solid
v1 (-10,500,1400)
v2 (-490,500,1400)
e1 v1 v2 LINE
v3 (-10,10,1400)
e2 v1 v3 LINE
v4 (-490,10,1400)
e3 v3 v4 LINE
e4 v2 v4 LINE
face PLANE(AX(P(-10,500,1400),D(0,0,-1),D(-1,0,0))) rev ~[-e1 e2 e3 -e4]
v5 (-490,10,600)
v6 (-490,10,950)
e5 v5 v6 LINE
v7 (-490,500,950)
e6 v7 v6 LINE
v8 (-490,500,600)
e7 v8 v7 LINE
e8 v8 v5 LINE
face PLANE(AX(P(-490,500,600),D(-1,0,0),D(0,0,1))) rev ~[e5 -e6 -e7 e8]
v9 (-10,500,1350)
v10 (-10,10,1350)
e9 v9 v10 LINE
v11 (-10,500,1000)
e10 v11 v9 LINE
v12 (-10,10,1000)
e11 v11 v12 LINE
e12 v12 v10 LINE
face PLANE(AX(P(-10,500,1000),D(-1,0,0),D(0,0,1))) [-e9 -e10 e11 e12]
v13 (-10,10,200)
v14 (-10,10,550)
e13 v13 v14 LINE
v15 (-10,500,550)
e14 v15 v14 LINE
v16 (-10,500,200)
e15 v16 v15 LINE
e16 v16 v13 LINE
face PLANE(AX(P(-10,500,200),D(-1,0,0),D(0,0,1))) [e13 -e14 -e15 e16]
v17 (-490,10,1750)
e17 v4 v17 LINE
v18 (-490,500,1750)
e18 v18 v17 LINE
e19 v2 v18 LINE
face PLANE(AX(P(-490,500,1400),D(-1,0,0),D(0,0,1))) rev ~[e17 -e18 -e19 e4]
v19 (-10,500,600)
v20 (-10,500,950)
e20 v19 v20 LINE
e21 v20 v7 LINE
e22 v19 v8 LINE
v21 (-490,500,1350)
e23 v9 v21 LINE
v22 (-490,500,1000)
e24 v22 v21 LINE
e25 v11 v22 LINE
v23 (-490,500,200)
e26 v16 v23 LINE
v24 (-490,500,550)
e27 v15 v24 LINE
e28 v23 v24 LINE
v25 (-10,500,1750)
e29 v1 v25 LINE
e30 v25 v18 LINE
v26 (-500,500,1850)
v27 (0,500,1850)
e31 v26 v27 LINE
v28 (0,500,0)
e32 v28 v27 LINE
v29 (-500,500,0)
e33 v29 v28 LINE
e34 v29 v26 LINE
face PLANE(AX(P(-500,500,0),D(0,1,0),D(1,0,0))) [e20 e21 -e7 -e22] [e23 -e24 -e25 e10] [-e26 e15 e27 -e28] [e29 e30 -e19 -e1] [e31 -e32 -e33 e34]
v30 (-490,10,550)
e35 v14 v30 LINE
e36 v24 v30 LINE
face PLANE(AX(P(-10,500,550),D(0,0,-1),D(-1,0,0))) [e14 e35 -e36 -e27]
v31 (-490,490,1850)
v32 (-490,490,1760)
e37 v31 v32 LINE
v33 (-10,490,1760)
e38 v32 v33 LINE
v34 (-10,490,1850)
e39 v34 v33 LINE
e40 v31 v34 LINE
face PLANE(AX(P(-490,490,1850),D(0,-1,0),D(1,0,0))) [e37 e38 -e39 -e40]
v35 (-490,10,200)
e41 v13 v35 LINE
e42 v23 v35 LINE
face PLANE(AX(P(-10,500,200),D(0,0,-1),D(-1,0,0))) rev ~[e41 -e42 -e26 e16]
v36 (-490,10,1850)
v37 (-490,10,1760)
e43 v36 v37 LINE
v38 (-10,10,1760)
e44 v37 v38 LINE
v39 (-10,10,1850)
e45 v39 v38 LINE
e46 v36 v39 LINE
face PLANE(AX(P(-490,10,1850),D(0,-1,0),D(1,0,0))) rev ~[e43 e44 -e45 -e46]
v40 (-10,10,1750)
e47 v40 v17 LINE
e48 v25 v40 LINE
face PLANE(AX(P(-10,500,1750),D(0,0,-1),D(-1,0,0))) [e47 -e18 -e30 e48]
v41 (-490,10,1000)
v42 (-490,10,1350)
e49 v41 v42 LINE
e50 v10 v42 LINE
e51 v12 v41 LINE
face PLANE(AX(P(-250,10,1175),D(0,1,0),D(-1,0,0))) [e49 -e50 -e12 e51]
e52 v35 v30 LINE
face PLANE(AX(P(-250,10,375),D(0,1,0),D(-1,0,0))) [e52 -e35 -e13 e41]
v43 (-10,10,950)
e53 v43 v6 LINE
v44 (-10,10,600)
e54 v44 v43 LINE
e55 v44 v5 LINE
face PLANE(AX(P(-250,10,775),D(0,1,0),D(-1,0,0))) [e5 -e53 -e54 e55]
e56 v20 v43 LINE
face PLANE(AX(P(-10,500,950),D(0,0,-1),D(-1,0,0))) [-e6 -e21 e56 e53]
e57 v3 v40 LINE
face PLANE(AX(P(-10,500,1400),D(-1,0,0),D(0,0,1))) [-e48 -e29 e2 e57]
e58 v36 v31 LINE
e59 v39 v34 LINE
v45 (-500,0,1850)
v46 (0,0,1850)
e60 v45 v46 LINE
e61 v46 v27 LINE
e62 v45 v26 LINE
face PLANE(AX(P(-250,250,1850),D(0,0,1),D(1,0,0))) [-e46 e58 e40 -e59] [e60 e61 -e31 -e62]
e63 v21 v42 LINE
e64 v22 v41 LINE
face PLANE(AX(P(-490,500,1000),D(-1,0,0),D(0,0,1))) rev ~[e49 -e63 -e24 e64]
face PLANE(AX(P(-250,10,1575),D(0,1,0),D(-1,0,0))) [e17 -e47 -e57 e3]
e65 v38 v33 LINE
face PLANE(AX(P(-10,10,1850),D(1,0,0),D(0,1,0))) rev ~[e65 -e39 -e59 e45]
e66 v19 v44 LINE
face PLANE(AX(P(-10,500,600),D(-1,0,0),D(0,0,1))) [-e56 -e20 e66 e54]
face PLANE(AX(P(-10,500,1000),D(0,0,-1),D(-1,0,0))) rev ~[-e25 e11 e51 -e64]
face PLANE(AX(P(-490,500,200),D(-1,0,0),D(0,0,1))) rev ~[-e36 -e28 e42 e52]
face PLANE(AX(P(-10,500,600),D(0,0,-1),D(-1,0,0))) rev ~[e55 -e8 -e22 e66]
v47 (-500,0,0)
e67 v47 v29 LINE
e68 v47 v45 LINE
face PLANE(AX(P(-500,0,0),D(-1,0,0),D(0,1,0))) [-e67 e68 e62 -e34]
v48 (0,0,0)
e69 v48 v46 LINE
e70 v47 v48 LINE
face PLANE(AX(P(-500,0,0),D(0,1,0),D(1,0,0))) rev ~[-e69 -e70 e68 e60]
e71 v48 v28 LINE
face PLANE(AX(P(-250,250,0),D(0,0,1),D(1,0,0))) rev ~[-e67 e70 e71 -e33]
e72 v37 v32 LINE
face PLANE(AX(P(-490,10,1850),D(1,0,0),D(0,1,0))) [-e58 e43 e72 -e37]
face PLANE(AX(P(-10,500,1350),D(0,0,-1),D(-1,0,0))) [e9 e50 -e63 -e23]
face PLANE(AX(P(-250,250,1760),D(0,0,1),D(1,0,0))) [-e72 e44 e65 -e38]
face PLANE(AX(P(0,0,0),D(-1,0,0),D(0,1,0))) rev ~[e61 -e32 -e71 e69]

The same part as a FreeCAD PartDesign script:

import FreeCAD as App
import Part
import Sketcher

V = App.Vector
Q = App.Units.Quantity

doc = App.newDocument("Part")
body = doc.addObject("PartDesign::Body", "Body")

# Sketch on XY plane
sketch1 = body.newObject("Sketcher::SketchObject", "Sketch")
sketch1.AttachmentSupport = (doc.getObject("XY_Plane"), [""])
sketch1.MapMode = "FlatFace"
sketch1.addGeometry([
    Part.LineSegment(V(-500, 500, 0), V(-500, 0, 0)),
    Part.LineSegment(V(-500, 0, 0), V(0, 0, 0)),
    Part.LineSegment(V(0, 0, 0), V(0, 500, 0)),
    Part.LineSegment(V(0, 500, 0), V(-500, 500, 0)),
], False)
sketch1.addConstraint([
    Sketcher.Constraint("Coincident", 0, 2, 1, 1),
    Sketcher.Constraint("Coincident", 1, 2, 2, 1),
    Sketcher.Constraint("Coincident", 2, 2, 3, 1),
    Sketcher.Constraint("Coincident", 3, 2, 0, 1),
    Sketcher.Constraint("Vertical", 0),
    Sketcher.Constraint("Horizontal", 1),
    Sketcher.Constraint("Vertical", 2),
    Sketcher.Constraint("Horizontal", 3),
    Sketcher.Constraint("Coincident", 1, 2, -1, 1),
    Sketcher.Constraint("Equal", 3, 0),
    Sketcher.Constraint("DistanceX", 1, 1, 1, 2, Q("500 mm")),
])
pad1 = body.newObject("PartDesign::Pad", "Pad")
pad1.Profile = sketch1
pad1.Length = 1850

# Sketch on XZ plane
sketch2 = body.newObject("Sketcher::SketchObject", "Sketch001")
sketch2.AttachmentSupport = (doc.getObject("XZ_Plane"), [""])
sketch2.MapMode = "FlatFace"
sketch2.AttachmentOffset = App.Placement(V(0, 0, -500), App.Rotation())
sketch2.addGeometry([
    Part.LineSegment(V(-10, 1750, 0), V(-10, 1400, 0)),  # 0
    Part.LineSegment(V(-10, 1400, 0), V(-490, 1400, 0)),  # 1
    Part.LineSegment(V(-490, 1400, 0), V(-490, 1750, 0)),  # 2
    Part.LineSegment(V(-490, 1750, 0), V(-10, 1750, 0)),  # 3
    Part.LineSegment(V(-10, 1350, 0), V(-10, 1000, 0)),  # 4
    Part.LineSegment(V(-10, 1000, 0), V(-490, 1000, 0)),  # 5
    Part.LineSegment(V(-490, 1000, 0), V(-490, 1350, 0)),  # 6
    Part.LineSegment(V(-490, 1350, 0), V(-10, 1350, 0)),  # 7
    Part.LineSegment(V(-10, 950, 0), V(-10, 600, 0)),  # 8
    Part.LineSegment(V(-10, 600, 0), V(-490, 600, 0)),  # 9
    Part.LineSegment(V(-490, 600, 0), V(-490, 950, 0)),  # 10
    Part.LineSegment(V(-490, 950, 0), V(-10, 950, 0)),  # 11
    Part.LineSegment(V(-10, 550, 0), V(-10, 200, 0)),  # 12
    Part.LineSegment(V(-10, 200, 0), V(-490, 200, 0)),  # 13
    Part.LineSegment(V(-490, 200, 0), V(-490, 550, 0)),  # 14
    Part.LineSegment(V(-490, 550, 0), V(-10, 550, 0)),  # 15
], False)
sketch2.addConstraint([
    Sketcher.Constraint("Coincident", 0, 2, 1, 1),
    Sketcher.Constraint("Coincident", 1, 2, 2, 1),
    Sketcher.Constraint("Coincident", 2, 2, 3, 1),
    Sketcher.Constraint("Coincident", 3, 2, 0, 1),
    Sketcher.Constraint("Coincident", 4, 2, 5, 1),
    Sketcher.Constraint("Coincident", 5, 2, 6, 1),
    Sketcher.Constraint("Coincident", 6, 2, 7, 1),
    Sketcher.Constraint("Coincident", 7, 2, 4, 1),
    Sketcher.Constraint("Coincident", 8, 2, 9, 1),
    Sketcher.Constraint("Coincident", 9, 2, 10, 1),
    Sketcher.Constraint("Coincident", 10, 2, 11, 1),
    Sketcher.Constraint("Coincident", 11, 2, 8, 1),
    Sketcher.Constraint("Coincident", 12, 2, 13, 1),
    Sketcher.Constraint("Coincident", 13, 2, 14, 1),
    Sketcher.Constraint("Coincident", 14, 2, 15, 1),
    Sketcher.Constraint("Coincident", 15, 2, 12, 1),
    Sketcher.Constraint("Vertical", 0),
    Sketcher.Constraint("Horizontal", 1),
    Sketcher.Constraint("Vertical", 2),
    Sketcher.Constraint("Horizontal", 3),
    Sketcher.Constraint("Vertical", 4),
    Sketcher.Constraint("Horizontal", 5),
    Sketcher.Constraint("Vertical", 6),
    Sketcher.Constraint("Horizontal", 7),
    Sketcher.Constraint("Vertical", 8),
    Sketcher.Constraint("Horizontal", 9),
    Sketcher.Constraint("Vertical", 10),
    Sketcher.Constraint("Horizontal", 11),
    Sketcher.Constraint("Vertical", 12),
    Sketcher.Constraint("Horizontal", 13),
    Sketcher.Constraint("Vertical", 14),
    Sketcher.Constraint("Horizontal", 15),
    Sketcher.Constraint("Vertical", 3, 2, 4, 2),
    Sketcher.Constraint("Vertical", 2, 2, 5, 2),
    Sketcher.Constraint("Vertical", 7, 2, 8, 2),
    Sketcher.Constraint("Vertical", 6, 2, 9, 2),
    Sketcher.Constraint("Vertical", 11, 2, 12, 2),
    Sketcher.Constraint("Vertical", 10, 2, 13, 2),
    Sketcher.Constraint("Equal", 2, 4),
    Sketcher.Constraint("Equal", 6, 8),
    Sketcher.Constraint("Equal", 10, 12),
    Sketcher.Constraint("DistanceX", 1, 2, 1, 1, Q("480 mm")),
    Sketcher.Constraint("DistanceY", 0, 2, 0, 1, Q("350 mm")),
    Sketcher.Constraint("DistanceX", 0, 2, -1, 1, Q("10 mm")),
    Sketcher.Constraint("DistanceY", -1, 1, 0, 2, Q("1400 mm")),
    Sketcher.Constraint("DistanceY", -1, 1, 4, 2, Q("1000 mm")),
    Sketcher.Constraint("DistanceY", -1, 1, 8, 2, Q("600 mm")),
    Sketcher.Constraint("DistanceY", -1, 1, 12, 2, Q("200 mm")),
])
pocket1 = body.newObject("PartDesign::Pocket", "Pocket")
pocket1.Profile = sketch2
pocket1.Length = 490
pocket1.Reversed = True

# Sketch on XY plane
sketch3 = body.newObject("Sketcher::SketchObject", "Sketch002")
sketch3.AttachmentSupport = (doc.getObject("XY_Plane"), [""])
sketch3.MapMode = "FlatFace"
sketch3.AttachmentOffset = App.Placement(V(0, 0, 1850), App.Rotation())
sketch3.addGeometry([
    Part.LineSegment(V(-490, 490, 0), V(-490, 10, 0)),
    Part.LineSegment(V(-490, 10, 0), V(-10, 10, 0)),
    Part.LineSegment(V(-10, 10, 0), V(-10, 490, 0)),
    Part.LineSegment(V(-10, 490, 0), V(-490, 490, 0)),
], False)
sketch3.addConstraint([
    Sketcher.Constraint("Coincident", 0, 2, 1, 1),
    Sketcher.Constraint("Coincident", 1, 2, 2, 1),
    Sketcher.Constraint("Coincident", 2, 2, 3, 1),
    Sketcher.Constraint("Coincident", 3, 2, 0, 1),
    Sketcher.Constraint("Vertical", 0),
    Sketcher.Constraint("Horizontal", 1),
    Sketcher.Constraint("Vertical", 2),
    Sketcher.Constraint("Horizontal", 3),
    Sketcher.Constraint("Equal", 3, 0),
    Sketcher.Constraint("DistanceX", 1, 1, 1, 2, Q("480 mm")),
    Sketcher.Constraint("DistanceX", 0, 2, -1, 1, Q("490 mm")),
    Sketcher.Constraint("DistanceY", -1, 1, 0, 2, Q("10 mm")),
])
pocket2 = body.newObject("PartDesign::Pocket", "Pocket001")
pocket2.Profile = sketch3
pocket2.Length = 90

doc.recompute()
